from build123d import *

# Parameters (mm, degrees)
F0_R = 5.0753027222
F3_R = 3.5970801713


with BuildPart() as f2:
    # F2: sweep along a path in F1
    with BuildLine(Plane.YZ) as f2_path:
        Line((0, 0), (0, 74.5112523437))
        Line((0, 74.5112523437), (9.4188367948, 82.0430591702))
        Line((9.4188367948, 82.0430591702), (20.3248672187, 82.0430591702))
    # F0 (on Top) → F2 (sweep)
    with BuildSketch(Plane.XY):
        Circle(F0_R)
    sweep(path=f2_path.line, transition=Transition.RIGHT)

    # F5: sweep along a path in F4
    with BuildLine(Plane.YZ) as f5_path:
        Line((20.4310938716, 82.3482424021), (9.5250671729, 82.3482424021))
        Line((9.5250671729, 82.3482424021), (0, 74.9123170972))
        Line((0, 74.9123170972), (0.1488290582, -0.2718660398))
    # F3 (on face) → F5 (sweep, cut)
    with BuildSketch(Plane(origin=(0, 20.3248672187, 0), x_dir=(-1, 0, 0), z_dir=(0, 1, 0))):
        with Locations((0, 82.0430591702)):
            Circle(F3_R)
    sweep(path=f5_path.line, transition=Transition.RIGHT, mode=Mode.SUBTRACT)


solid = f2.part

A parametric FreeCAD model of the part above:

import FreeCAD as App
import Part
import Sketcher
from FreeCAD import Vector

doc = App.newDocument("Part")
body = doc.addObject("PartDesign::Body", "Body")

sketch1 = body.newObject("Sketcher::SketchObject", "Sketch")
sketch1.AttachmentSupport = (doc.getObject("XY_Plane"), [""])
sketch1.MapMode = "FlatFace"
sketch1.addGeometry(Part.Circle(Vector(0, 0, 0), Vector(0, 0, 1), 5), False)
sketch1.addConstraint([
    Sketcher.Constraint("Coincident", 0, 3, -1, 1),
    Sketcher.Constraint("Diameter", 0, 10.150605),
])

sketch2 = body.newObject("Sketcher::SketchObject", "Sketch001")
sketch2.AttachmentSupport = (doc.getObject("YZ_Plane"), [""])
sketch2.MapMode = "FlatFace"
sketch2.addGeometry([
    Part.LineSegment(Vector(0, 0, 0), Vector(0, 75, 0)),
    Part.LineSegment(Vector(0, 75, 0), Vector(9, 82, 0)),
    Part.LineSegment(Vector(9, 82, 0), Vector(20, 82, 0)),
], False)
sketch2.addConstraint([
    Sketcher.Constraint("Coincident", 0, 2, 1, 1),
    Sketcher.Constraint("Coincident", 1, 2, 2, 1),
    Sketcher.Constraint("Vertical", 0),
    Sketcher.Constraint("Horizontal", 2),
    Sketcher.Constraint("Coincident", 0, 1, -1, 1),
    Sketcher.Constraint("DistanceX", 2, 1, 2, 2, 10.90603),
    Sketcher.Constraint("Distance", 1, 12.059959),
    Sketcher.Constraint("DistanceY", 0, 1, 0, 2, 74.511252),
    Sketcher.Constraint("DistanceY", -1, 1, 1, 2, 82.043059),
])
doc.recompute()

additivepipe = body.newObject("PartDesign::AdditivePipe", "AdditivePipe")
additivepipe.Profile = sketch1
additivepipe.Spine = (sketch2, ["Edge1", "Edge2", "Edge3"])
additivepipe.Transition = "Right corner"

sketch3 = body.newObject("Sketcher::SketchObject", "Sketch002")
sketch3.AttachmentSupport = (doc.getObject("XZ_Plane"), [""])
sketch3.MapMode = "FlatFace"
sketch3.AttachmentOffset = App.Placement(Vector(0, 0, -20.324867), App.Rotation())
sketch3.addGeometry(Part.Circle(Vector(0, 82, 0), Vector(0, 0, 1), 3.6), False)
sketch3.addConstraint([
    Sketcher.Constraint("PointOnObject", 0, 3, -2),
    Sketcher.Constraint("Diameter", 0, 7.19416),
    Sketcher.Constraint("DistanceY", -1, 1, 0, 3, 82.043059),
])

sketch4 = body.newObject("Sketcher::SketchObject", "Sketch003")
sketch4.AttachmentSupport = (doc.getObject("YZ_Plane"), [""])
sketch4.MapMode = "FlatFace"
sketch4.addGeometry([
    Part.LineSegment(Vector(20, 82, 0), Vector(10, 82, 0)),
    Part.LineSegment(Vector(10, 82, 0), Vector(0, 75, 0)),
    Part.LineSegment(Vector(0, 75, 0), Vector(0, 0, 0)),
], False)
sketch4.addConstraint([
    Sketcher.Constraint("Coincident", 0, 2, 1, 1),
    Sketcher.Constraint("Coincident", 1, 2, 2, 1),
    Sketcher.Constraint("Horizontal", 0),
    Sketcher.Constraint("PointOnObject", 1, 2, -2),
    Sketcher.Constraint("Distance", 1, 12.083869),
    Sketcher.Constraint("Distance", 2, 75.18433),
    Sketcher.Constraint("DistanceX", 0, 2, 0, 1, 10.906027),
    Sketcher.Constraint("DistanceX", -1, 1, 2, 2, 0.148829),
    Sketcher.Constraint("DistanceX", 2, 2, 0, 2, 9.376238),
    Sketcher.Constraint("DistanceY", -1, 1, 0, 1, 82.348242),
])
doc.recompute()

subtractivepipe = body.newObject("PartDesign::SubtractivePipe", "SubtractivePipe")
subtractivepipe.Profile = sketch3
subtractivepipe.Spine = (sketch4, ["Edge1", "Edge2", "Edge3"])
subtractivepipe.Transition = "Right corner"

doc.recompute()
